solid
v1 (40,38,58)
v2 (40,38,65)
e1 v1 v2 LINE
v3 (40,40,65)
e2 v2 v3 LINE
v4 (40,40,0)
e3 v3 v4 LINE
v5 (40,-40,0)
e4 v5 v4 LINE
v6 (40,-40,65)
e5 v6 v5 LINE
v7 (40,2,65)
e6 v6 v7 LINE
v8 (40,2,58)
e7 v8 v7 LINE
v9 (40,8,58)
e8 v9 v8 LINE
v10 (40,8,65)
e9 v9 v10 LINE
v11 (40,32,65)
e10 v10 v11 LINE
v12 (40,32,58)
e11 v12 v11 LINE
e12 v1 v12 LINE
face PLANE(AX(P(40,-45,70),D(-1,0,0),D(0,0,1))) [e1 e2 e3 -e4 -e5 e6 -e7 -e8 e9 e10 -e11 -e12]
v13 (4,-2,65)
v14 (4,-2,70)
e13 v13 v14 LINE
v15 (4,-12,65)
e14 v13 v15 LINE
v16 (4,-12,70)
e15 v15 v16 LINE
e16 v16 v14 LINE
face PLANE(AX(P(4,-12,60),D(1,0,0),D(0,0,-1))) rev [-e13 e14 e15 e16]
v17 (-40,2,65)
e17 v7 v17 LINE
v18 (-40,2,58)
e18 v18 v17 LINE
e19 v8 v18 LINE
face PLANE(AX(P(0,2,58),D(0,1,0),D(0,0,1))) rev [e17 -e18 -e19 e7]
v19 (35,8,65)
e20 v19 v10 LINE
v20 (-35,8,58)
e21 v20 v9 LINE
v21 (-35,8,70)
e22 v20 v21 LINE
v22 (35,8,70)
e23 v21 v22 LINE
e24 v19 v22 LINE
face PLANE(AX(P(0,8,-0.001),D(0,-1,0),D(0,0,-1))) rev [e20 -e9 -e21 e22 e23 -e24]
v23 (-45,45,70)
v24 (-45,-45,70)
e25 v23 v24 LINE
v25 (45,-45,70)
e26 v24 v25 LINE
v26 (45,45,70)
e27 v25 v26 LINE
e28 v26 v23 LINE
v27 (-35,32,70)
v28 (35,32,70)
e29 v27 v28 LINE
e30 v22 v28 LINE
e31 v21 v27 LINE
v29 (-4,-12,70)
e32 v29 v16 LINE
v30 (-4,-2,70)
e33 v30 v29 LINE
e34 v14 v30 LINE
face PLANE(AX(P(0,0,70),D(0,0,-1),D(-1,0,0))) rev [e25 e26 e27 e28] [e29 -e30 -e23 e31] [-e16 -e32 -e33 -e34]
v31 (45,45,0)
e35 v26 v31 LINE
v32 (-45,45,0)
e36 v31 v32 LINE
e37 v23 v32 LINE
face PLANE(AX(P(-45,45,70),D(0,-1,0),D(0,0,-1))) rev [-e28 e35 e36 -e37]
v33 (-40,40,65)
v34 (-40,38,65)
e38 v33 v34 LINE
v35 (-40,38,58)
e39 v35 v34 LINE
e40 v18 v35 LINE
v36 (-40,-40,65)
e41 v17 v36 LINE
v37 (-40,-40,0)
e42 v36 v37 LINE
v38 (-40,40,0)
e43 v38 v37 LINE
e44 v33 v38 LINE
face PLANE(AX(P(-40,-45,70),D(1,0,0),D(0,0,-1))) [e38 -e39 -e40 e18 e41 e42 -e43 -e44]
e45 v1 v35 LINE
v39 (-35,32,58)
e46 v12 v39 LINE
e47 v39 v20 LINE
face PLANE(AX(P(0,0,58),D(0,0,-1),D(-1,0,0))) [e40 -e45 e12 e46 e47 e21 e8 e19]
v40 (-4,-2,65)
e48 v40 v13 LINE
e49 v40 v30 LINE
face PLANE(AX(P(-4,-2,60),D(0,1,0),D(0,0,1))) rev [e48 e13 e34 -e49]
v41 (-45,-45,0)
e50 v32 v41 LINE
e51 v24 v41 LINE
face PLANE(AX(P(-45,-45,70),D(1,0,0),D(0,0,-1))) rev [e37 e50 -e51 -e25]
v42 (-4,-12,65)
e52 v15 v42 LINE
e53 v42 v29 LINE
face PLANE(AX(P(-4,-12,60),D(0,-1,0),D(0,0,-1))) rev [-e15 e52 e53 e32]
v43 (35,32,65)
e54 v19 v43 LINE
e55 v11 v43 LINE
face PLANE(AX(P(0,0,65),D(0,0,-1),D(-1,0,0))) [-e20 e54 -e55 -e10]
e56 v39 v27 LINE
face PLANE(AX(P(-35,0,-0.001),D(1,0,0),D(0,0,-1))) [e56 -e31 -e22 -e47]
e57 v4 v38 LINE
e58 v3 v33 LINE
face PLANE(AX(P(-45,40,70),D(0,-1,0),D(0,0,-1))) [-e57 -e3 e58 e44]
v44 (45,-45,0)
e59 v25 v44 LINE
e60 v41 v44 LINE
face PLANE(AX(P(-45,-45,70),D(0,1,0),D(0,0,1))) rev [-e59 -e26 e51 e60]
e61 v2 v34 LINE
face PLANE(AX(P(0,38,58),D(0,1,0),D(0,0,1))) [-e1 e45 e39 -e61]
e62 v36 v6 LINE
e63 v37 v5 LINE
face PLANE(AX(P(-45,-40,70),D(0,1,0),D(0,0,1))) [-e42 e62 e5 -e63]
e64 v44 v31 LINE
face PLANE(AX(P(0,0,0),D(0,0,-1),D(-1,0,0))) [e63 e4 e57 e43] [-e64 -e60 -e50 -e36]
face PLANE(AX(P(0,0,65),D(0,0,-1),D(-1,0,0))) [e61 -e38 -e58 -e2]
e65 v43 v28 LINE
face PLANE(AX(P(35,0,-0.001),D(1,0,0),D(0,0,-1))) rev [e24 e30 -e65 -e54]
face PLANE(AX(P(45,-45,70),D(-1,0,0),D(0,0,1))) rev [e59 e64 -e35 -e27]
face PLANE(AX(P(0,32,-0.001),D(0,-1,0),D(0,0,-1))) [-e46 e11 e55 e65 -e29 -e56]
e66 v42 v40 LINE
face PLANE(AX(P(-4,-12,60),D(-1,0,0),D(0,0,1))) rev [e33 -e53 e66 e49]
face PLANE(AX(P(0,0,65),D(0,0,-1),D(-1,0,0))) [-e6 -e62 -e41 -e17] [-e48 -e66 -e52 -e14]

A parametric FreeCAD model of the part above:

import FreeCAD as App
import Part
import Sketcher

V = App.Vector
Q = App.Units.Quantity


def faces_at(feature, points):
    """Names of the faces that lie closest to the given points."""
    faces = feature.Shape.Faces
    near = lambda p: min(range(len(faces)), key=lambda i: faces[i].distToShape(Part.Vertex(*p))[0])
    return sorted({f"Face{near(p) + 1}" for p in points})


def add_polygon(sketch, points):
    """Adds a closed chain of lines whose ends are joined by coincident constraints."""
    first, n = sketch.GeometryCount, len(points)
    for a, b in zip(points, points[1:] + points[:1]):
        sketch.addGeometry(Part.LineSegment(App.Vector(*a, 0), App.Vector(*b, 0)), False)
    for i in range(n):
        sketch.addConstraint(Sketcher.Constraint("Coincident", first + i, 2, first + (i + 1) % n, 1))

doc = App.newDocument("Part")
params = doc.addObject("Spreadsheet::Sheet", "Params")
for row, (alias, value) in enumerate([
    ("sketch1_width", "90 mm"),
    ("pad1_length", "70 mm"),
    ("thickness_wall", "5 mm"),
    ("sketch2_width", "70 mm"),
    ("sketch2_height", "24 mm"),
    ("sketch3_width", "75 mm"),
    ("sketch3_width2", "80 mm"),
    ("sketch3_height", "6 mm"),
    ("sketch3_height2", "24 mm"),
    ("pad2_length", "7 mm"),
    ("sketch4_width", "8 mm"),
    ("sketch4_height", "10 mm"),
    ("pocket2_length", "10 mm"),
], start=1):
    params.set(f"A{row}", alias)
    params.set(f"B{row}", "=" + value)
    params.setAlias(f"B{row}", alias)

body = doc.addObject("PartDesign::Body", "Body")

sketch1 = body.newObject("Sketcher::SketchObject", "Sketch")
sketch1.AttachmentSupport = (doc.getObject("XY_Plane"), [""])
sketch1.MapMode = "FlatFace"
add_polygon(sketch1, [(-45, 45), (-45, -45), (45, -45), (45, 45)])
sketch1.addConstraint(Sketcher.Constraint("Vertical", 0))
sketch1.addConstraint(Sketcher.Constraint("Horizontal", 1))
sketch1.addConstraint(Sketcher.Constraint("Vertical", 2))
sketch1.addConstraint(Sketcher.Constraint("Horizontal", 3))
sketch1.addConstraint(Sketcher.Constraint("Symmetric", 0, 2, 2, 2, -1, 1))
sketch1.addConstraint(Sketcher.Constraint("Equal", 3, 0))
sketch1.addConstraint(Sketcher.Constraint("DistanceX", 1, 1, 1, 2, Q("90 mm")))
sketch1.setExpression("Constraints[10]", "Params.sketch1_width")
pad1 = body.newObject("PartDesign::Pad", "Pad")
pad1.Profile = sketch1
pad1.setExpression("Length", "Params.pad1_length")
doc.recompute()

thickness = body.newObject("PartDesign::Thickness", "Thickness")
thickness.Base = (pad1, faces_at(pad1, [(0, 0, 0)]))
thickness.setExpression("Value", "Params.thickness_wall")
thickness.Reversed = True
thickness.Join = "Intersection"

sketch2 = body.newObject("Sketcher::SketchObject", "Sketch001")
sketch2.AttachmentSupport = (doc.getObject("XY_Plane"), [""])
sketch2.MapMode = "FlatFace"
sketch2.AttachmentOffset = App.Placement(V(0, 0, 70), App.Rotation())
add_polygon(sketch2, [(-35, 32), (-35, 8), (35, 8), (35, 32)])
sketch2.addConstraint(Sketcher.Constraint("Vertical", 0))
sketch2.addConstraint(Sketcher.Constraint("Horizontal", 1))
sketch2.addConstraint(Sketcher.Constraint("Vertical", 2))
sketch2.addConstraint(Sketcher.Constraint("Horizontal", 3))
sketch2.addConstraint(Sketcher.Constraint("DistanceX", 1, 1, 1, 2, Q("70 mm")))
sketch2.addConstraint(Sketcher.Constraint("DistanceY", 0, 2, 0, 1, Q("24 mm")))
sketch2.addConstraint(Sketcher.Constraint("DistanceX", 0, 2, -1, 1, Q("35 mm")))
sketch2.addConstraint(Sketcher.Constraint("DistanceY", -1, 1, 0, 2, Q("8 mm")))
sketch2.setExpression("Constraints[8]", "Params.sketch2_width")
sketch2.setExpression("Constraints[9]", "Params.sketch2_height")
pocket1 = body.newObject("PartDesign::Pocket", "Pocket")
pocket1.Profile = sketch2
pocket1.Type = "UpToFirst"

sketch3 = body.newObject("Sketcher::SketchObject", "Sketch002")
sketch3.AttachmentSupport = (doc.getObject("XY_Plane"), [""])
sketch3.MapMode = "FlatFace"
sketch3.AttachmentOffset = App.Placement(V(0, 0, 65), App.Rotation())
add_polygon(sketch3, [(40, 38), (40, 32), (-35, 32), (-35, 8), (40, 8), (40, 2), (-40, 2), (-40, 38)])
sketch3.addConstraint(Sketcher.Constraint("Vertical", 0))
sketch3.addConstraint(Sketcher.Constraint("Horizontal", 1))
sketch3.addConstraint(Sketcher.Constraint("Vertical", 2))
sketch3.addConstraint(Sketcher.Constraint("Horizontal", 3))
sketch3.addConstraint(Sketcher.Constraint("Vertical", 4))
sketch3.addConstraint(Sketcher.Constraint("Horizontal", 5))
sketch3.addConstraint(Sketcher.Constraint("Vertical", 6))
sketch3.addConstraint(Sketcher.Constraint("Horizontal", 7))
sketch3.addConstraint(Sketcher.Constraint("Vertical", 0, 2, 3, 2))
sketch3.addConstraint(Sketcher.Constraint("Equal", 0, 4))
sketch3.addConstraint(Sketcher.Constraint("DistanceX", 1, 2, 1, 1, Q("75 mm")))
sketch3.addConstraint(Sketcher.Constraint("DistanceX", 5, 2, 5, 1, Q("80 mm")))
sketch3.addConstraint(Sketcher.Constraint("DistanceY", 0, 2, 0, 1, Q("6 mm")))
sketch3.addConstraint(Sketcher.Constraint("DistanceY", 2, 2, 2, 1, Q("24 mm")))
sketch3.addConstraint(Sketcher.Constraint("DistanceX", -1, 1, 0, 2, Q("40 mm")))
sketch3.addConstraint(Sketcher.Constraint("DistanceY", -1, 1, 0, 2, Q("32 mm")))
sketch3.setExpression("Constraints[18]", "Params.sketch3_width")
sketch3.setExpression("Constraints[19]", "Params.sketch3_width2")
sketch3.setExpression("Constraints[20]", "Params.sketch3_height")
sketch3.setExpression("Constraints[21]", "Params.sketch3_height2")
pad2 = body.newObject("PartDesign::Pad", "Pad001")
pad2.Profile = sketch3
pad2.setExpression("Length", "Params.pad2_length")
pad2.Reversed = True

sketch4 = body.newObject("Sketcher::SketchObject", "Sketch003")
sketch4.AttachmentSupport = (doc.getObject("XY_Plane"), [""])
sketch4.MapMode = "FlatFace"
sketch4.AttachmentOffset = App.Placement(V(0, 0, 70), App.Rotation())
add_polygon(sketch4, [(-4, -2), (-4, -12), (4, -12), (4, -2)])
sketch4.addConstraint(Sketcher.Constraint("Vertical", 0))
sketch4.addConstraint(Sketcher.Constraint("Horizontal", 1))
sketch4.addConstraint(Sketcher.Constraint("Vertical", 2))
sketch4.addConstraint(Sketcher.Constraint("Horizontal", 3))
sketch4.addConstraint(Sketcher.Constraint("DistanceX", 1, 1, 1, 2, Q("8 mm")))
sketch4.addConstraint(Sketcher.Constraint("DistanceY", 0, 2, 0, 1, Q("10 mm")))
sketch4.addConstraint(Sketcher.Constraint("DistanceX", 0, 2, -1, 1, Q("4 mm")))
sketch4.addConstraint(Sketcher.Constraint("DistanceY", 0, 2, -1, 1, Q("12 mm")))
sketch4.setExpression("Constraints[8]", "Params.sketch4_width")
sketch4.setExpression("Constraints[9]", "Params.sketch4_height")
pocket2 = body.newObject("PartDesign::Pocket", "Pocket001")
pocket2.Profile = sketch4
pocket2.setExpression("Length", "Params.pocket2_length")

doc.recompute()
